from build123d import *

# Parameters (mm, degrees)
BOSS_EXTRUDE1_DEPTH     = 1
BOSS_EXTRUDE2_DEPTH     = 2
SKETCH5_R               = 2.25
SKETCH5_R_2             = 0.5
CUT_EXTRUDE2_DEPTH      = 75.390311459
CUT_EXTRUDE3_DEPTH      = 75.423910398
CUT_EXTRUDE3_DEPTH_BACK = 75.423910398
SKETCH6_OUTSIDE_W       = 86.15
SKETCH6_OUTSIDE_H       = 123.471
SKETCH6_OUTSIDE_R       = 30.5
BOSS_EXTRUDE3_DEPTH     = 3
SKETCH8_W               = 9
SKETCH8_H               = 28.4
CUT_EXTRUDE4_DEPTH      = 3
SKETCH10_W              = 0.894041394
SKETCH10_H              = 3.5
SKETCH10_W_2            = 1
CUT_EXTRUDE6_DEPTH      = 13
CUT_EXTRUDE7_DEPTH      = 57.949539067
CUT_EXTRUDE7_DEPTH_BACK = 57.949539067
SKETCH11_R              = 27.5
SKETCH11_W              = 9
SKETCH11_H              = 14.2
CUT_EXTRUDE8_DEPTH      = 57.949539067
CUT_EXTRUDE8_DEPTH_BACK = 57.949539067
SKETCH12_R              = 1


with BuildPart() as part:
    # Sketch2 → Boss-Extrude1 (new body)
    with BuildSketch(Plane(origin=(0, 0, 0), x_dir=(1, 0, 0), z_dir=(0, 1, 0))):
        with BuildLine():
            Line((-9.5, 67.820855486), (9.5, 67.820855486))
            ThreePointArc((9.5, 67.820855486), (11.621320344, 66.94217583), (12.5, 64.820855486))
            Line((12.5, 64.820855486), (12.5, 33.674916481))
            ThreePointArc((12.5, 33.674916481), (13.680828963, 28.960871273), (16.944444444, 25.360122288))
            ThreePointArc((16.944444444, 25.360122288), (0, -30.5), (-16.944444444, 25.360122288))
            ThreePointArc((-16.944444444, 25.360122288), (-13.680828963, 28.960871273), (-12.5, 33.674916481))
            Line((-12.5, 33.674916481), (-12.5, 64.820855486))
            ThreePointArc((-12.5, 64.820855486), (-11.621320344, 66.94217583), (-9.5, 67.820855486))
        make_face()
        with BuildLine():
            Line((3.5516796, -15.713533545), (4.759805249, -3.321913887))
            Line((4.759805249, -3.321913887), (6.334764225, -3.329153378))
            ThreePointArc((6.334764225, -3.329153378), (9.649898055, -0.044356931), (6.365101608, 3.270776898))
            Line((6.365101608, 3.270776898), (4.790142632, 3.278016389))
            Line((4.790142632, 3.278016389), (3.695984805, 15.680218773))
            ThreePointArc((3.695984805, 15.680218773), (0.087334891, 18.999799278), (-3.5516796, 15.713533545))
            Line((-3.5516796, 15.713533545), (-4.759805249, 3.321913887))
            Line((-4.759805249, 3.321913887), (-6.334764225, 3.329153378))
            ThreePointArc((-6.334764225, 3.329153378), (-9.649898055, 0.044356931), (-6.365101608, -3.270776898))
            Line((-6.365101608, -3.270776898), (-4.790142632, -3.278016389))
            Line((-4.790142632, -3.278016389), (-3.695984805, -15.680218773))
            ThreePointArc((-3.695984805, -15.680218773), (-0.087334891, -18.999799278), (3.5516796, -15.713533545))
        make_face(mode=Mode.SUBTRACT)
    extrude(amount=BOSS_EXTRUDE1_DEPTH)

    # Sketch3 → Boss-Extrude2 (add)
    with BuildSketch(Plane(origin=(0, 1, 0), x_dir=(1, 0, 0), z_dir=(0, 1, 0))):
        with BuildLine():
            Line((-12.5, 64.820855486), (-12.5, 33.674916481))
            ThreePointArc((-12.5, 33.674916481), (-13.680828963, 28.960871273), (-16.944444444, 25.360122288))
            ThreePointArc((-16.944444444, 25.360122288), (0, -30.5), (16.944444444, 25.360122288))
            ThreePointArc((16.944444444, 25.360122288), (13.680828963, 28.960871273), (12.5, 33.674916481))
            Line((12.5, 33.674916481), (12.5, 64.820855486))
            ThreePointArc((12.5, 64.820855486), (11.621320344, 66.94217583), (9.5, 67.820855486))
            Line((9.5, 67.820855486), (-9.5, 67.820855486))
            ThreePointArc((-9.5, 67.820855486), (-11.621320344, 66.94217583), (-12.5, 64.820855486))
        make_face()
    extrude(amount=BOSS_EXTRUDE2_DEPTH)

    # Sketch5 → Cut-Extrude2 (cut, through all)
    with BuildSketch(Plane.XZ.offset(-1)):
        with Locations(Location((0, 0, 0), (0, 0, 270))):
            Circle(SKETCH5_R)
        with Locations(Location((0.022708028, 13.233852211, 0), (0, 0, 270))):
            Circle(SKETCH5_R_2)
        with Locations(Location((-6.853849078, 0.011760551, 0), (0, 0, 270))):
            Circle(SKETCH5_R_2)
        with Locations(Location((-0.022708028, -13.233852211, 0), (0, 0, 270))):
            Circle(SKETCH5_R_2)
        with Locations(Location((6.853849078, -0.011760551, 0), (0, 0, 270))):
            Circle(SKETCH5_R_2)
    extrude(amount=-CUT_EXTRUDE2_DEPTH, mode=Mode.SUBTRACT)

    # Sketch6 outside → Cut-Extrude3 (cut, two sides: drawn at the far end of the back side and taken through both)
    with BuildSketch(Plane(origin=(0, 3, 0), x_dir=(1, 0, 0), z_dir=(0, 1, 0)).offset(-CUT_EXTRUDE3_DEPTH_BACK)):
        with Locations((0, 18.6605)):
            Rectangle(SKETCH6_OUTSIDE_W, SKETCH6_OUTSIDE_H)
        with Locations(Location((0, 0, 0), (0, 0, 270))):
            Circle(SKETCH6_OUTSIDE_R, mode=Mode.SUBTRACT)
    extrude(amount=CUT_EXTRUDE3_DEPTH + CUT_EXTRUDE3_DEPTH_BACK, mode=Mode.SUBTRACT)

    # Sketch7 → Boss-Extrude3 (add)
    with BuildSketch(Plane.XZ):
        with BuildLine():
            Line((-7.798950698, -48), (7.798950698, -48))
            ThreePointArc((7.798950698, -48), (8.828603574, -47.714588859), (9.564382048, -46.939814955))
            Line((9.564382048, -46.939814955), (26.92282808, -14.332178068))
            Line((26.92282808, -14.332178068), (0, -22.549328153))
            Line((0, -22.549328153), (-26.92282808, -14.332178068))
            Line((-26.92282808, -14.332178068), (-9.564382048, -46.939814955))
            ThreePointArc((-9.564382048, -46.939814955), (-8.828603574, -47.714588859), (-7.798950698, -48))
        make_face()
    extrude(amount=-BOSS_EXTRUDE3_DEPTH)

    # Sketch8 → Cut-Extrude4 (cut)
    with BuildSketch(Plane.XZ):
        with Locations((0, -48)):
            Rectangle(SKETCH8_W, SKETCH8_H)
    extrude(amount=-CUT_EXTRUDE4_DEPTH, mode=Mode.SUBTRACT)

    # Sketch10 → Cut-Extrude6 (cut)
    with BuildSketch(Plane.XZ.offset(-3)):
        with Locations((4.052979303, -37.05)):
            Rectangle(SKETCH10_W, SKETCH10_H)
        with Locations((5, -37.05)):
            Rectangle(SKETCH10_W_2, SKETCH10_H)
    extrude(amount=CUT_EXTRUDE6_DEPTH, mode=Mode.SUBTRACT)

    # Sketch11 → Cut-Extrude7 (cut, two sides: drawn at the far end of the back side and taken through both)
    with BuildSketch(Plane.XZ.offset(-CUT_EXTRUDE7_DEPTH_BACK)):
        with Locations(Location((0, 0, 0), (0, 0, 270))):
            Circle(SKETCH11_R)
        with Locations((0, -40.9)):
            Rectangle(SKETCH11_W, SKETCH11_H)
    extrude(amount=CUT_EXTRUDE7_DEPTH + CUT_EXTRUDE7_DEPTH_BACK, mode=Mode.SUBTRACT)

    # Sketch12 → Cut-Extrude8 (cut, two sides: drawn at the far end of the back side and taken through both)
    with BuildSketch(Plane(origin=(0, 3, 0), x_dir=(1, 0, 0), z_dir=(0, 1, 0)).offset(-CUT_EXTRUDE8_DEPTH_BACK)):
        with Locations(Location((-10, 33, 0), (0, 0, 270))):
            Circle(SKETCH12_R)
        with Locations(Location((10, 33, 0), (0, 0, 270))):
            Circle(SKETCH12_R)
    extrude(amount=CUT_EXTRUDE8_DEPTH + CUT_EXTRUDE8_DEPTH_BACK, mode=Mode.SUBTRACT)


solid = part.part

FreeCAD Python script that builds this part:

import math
import FreeCAD as App
import Part
import Sketcher

V = App.Vector
Q = App.Units.Quantity

doc = App.newDocument("Part")
body = doc.addObject("PartDesign::Body", "Body")

# Sketch on XZ plane
sketch1 = body.newObject("Sketcher::SketchObject", "Sketch")
sketch1.AttachmentSupport = (doc.getObject("XZ_Plane"), [""])
sketch1.MapMode = "FlatFace"
sketch1.addGeometry([
    Part.LineSegment(V(9.5, -67.8, 0), V(-9.5, -67.8, 0)),  # 0
    Part.ArcOfCircle(Part.Circle(V(-9.5, -64.8, 0), V(0, 0, 1), 3), math.radians(180), math.radians(270)),  # 1
    Part.LineSegment(V(-12.5, -64.8, 0), V(-12.5, -33.7, 0)),  # 2
    Part.ArcOfCircle(Part.Circle(V(-22.5, -33.7, 0), V(0, 0, 1), 10), math.radians(0), math.radians(56)),  # 3
    Part.ArcOfCircle(Part.Circle(V(0, 0, 0), V(0, 0, 1), 30.5), math.radians(-56), math.radians(236)),  # 4
    Part.ArcOfCircle(Part.Circle(V(22.5, -33.7, 0), V(0, 0, 1), 10), math.radians(124), math.radians(180)),  # 5
    Part.LineSegment(V(12.5, -33.7, 0), V(12.5, -64.8, 0)),  # 6
    Part.ArcOfCircle(Part.Circle(V(9.5, -64.8, 0), V(0, 0, 1), 3), math.radians(-90), math.radians(0)),  # 7
    Part.ArcOfCircle(Part.Circle(V(-0.1, 15.4, 0), V(0, 0, 1), 3.6), math.radians(6), math.radians(175)),  # 8
    Part.LineSegment(V(-3.7, 15.7, 0), V(-4.8, 3.3, 0)),  # 9
    Part.LineSegment(V(-4.8, 3.3, 0), V(-6.4, 3.3, 0)),  # 10
    Part.ArcOfCircle(Part.Circle(V(-6.3, 0, 0), V(0, 0, 1), 3.3), math.radians(90), math.radians(270)),  # 11
    Part.LineSegment(V(-6.3, -3.3, 0), V(-4.8, -3.3, 0)),  # 12
    Part.LineSegment(V(-4.8, -3.3, 0), V(-3.6, -15.7, 0)),  # 13
    Part.ArcOfCircle(Part.Circle(V(0.1, -15.4, 0), V(0, 0, 1), 3.6), math.radians(-174), math.radians(-5)),  # 14
    Part.LineSegment(V(3.7, -15.7, 0), V(4.8, -3.3, 0)),  # 15
    Part.LineSegment(V(4.8, -3.3, 0), V(6.4, -3.3, 0)),  # 16
    Part.ArcOfCircle(Part.Circle(V(6.3, 0, 0), V(0, 0, 1), 3.3), math.radians(-90), math.radians(90)),  # 17
    Part.LineSegment(V(6.3, 3.3, 0), V(4.8, 3.3, 0)),  # 18
    Part.LineSegment(V(4.8, 3.3, 0), V(3.6, 15.7, 0)),  # 19
], False)
sketch1.addConstraint([
    Sketcher.Constraint("Tangent", 0, 2, 1, 2),
    Sketcher.Constraint("Tangent", 1, 1, 2, 1),
    Sketcher.Constraint("Tangent", 2, 2, 3, 1),
    Sketcher.Constraint("Tangent", 3, 2, 4, 2),
    Sketcher.Constraint("Tangent", 4, 1, 5, 1),
    Sketcher.Constraint("Tangent", 5, 2, 6, 1),
    Sketcher.Constraint("Tangent", 6, 2, 7, 2),
    Sketcher.Constraint("Tangent", 7, 1, 0, 1),
    Sketcher.Constraint("Tangent", 8, 2, 9, 1),
    Sketcher.Constraint("Coincident", 9, 2, 10, 1),
    Sketcher.Constraint("Tangent", 10, 2, 11, 1),
    Sketcher.Constraint("Tangent", 11, 2, 12, 1),
    Sketcher.Constraint("Coincident", 12, 2, 13, 1),
    Sketcher.Constraint("Tangent", 13, 2, 14, 1),
    Sketcher.Constraint("Tangent", 14, 2, 15, 1),
    Sketcher.Constraint("Coincident", 15, 2, 16, 1),
    Sketcher.Constraint("Tangent", 16, 2, 17, 1),
    Sketcher.Constraint("Tangent", 17, 2, 18, 1),
    Sketcher.Constraint("Coincident", 18, 2, 19, 1),
    Sketcher.Constraint("Tangent", 19, 2, 8, 1),
    Sketcher.Constraint("Horizontal", 0),
    Sketcher.Constraint("Vertical", 2),
    Sketcher.Constraint("Vertical", 6),
    Sketcher.Constraint("Coincident", 4, 3, -1, 1),
    Sketcher.Constraint("Equal", 3, 5),
    Sketcher.Constraint("Equal", 1, 7),
    Sketcher.Constraint("Equal", 8, 14),
    Sketcher.Constraint("Equal", 11, 17),
    Sketcher.Constraint("Symmetric", 8, 3, 14, 3, -1, 1),
    Sketcher.Constraint("Symmetric", 11, 3, 17, 3, -1, 1),
    Sketcher.Constraint("Symmetric", 9, 2, 15, 2, -1, 1),
    Sketcher.Constraint("Symmetric", 12, 2, 18, 2, -1, 1),
    Sketcher.Constraint("Parallel", 10, 12),
    Sketcher.Constraint("Horizontal", 3, 3, 5, 3),
    Sketcher.Constraint("Equal", 10, 12),
    Sketcher.Constraint("Equal", 9, 13),
    Sketcher.Constraint("Radius", 1, Q("3 mm")),
    Sketcher.Constraint("Radius", 3, Q("10 mm")),
    Sketcher.Constraint("Radius", 4, Q("30.5 mm")),
    Sketcher.Constraint("Radius", 11, Q("3.3 mm")),
    Sketcher.Constraint("DistanceX", 0, 2, 0, 1, Q("19 mm")),
    Sketcher.Constraint("Radius", 8, Q("3.63946 mm")),
    Sketcher.Constraint("DistanceY", 2, 1, 2, 2, Q("31.145939 mm")),
    Sketcher.Constraint("DistanceX", 10, 2, -1, 1, Q("6.365102 mm")),
    Sketcher.Constraint("DistanceY", 11, 3, -1, 1, Q("0.029188 mm")),
    Sketcher.Constraint("DistanceY", -1, 1, 8, 2, Q("15.680219 mm")),
    Sketcher.Constraint("DistanceX", 13, 2, -1, 1, Q("3.55168 mm")),
    Sketcher.Constraint("DistanceX", 11, 3, 14, 3, Q("6.420539 mm")),
])
pad1 = body.newObject("PartDesign::Pad", "Pad")
pad1.Profile = sketch1
pad1.Length = 1
pad1.Reversed = True

# Sketch on XZ plane
sketch2 = body.newObject("Sketcher::SketchObject", "Sketch001")
sketch2.AttachmentSupport = (doc.getObject("XZ_Plane"), [""])
sketch2.MapMode = "FlatFace"
sketch2.AttachmentOffset = App.Placement(V(0, 0, -1), App.Rotation())
sketch2.addGeometry([
    Part.LineSegment(V(-12.5, -64.8, 0), V(-12.5, -33.7, 0)),  # 0
    Part.ArcOfCircle(Part.Circle(V(-22.5, -33.7, 0), V(0, 0, 1), 10), math.radians(0), math.radians(56)),  # 1
    Part.ArcOfCircle(Part.Circle(V(0, 0, 0), V(0, 0, 1), 30.5), math.radians(-56), math.radians(236)),  # 2
    Part.ArcOfCircle(Part.Circle(V(22.5, -33.7, 0), V(0, 0, 1), 10), math.radians(124), math.radians(180)),  # 3
    Part.LineSegment(V(12.5, -33.7, 0), V(12.5, -64.8, 0)),  # 4
    Part.ArcOfCircle(Part.Circle(V(9.5, -64.8, 0), V(0, 0, 1), 3), math.radians(-90), math.radians(0)),  # 5
    Part.LineSegment(V(9.5, -67.8, 0), V(-9.5, -67.8, 0)),  # 6
    Part.ArcOfCircle(Part.Circle(V(-9.5, -64.8, 0), V(0, 0, 1), 3), math.radians(180), math.radians(270)),  # 7
], False)
sketch2.addConstraint([
    Sketcher.Constraint("Tangent", 0, 2, 1, 1),
    Sketcher.Constraint("Tangent", 1, 2, 2, 2),
    Sketcher.Constraint("Tangent", 2, 1, 3, 1),
    Sketcher.Constraint("Tangent", 3, 2, 4, 1),
    Sketcher.Constraint("Tangent", 4, 2, 5, 2),
    Sketcher.Constraint("Tangent", 5, 1, 6, 1),
    Sketcher.Constraint("Tangent", 6, 2, 7, 2),
    Sketcher.Constraint("Tangent", 7, 1, 0, 1),
    Sketcher.Constraint("Vertical", 0),
    Sketcher.Constraint("Vertical", 4),
    Sketcher.Constraint("Horizontal", 6),
    Sketcher.Constraint("Coincident", 2, 3, -1, 1),
    Sketcher.Constraint("Equal", 1, 3),
    Sketcher.Constraint("Equal", 5, 7),
    Sketcher.Constraint("Horizontal", 1, 3, 3, 3),
    Sketcher.Constraint("Radius", 1, Q("10 mm")),
    Sketcher.Constraint("Radius", 5, Q("3 mm")),
    Sketcher.Constraint("Radius", 2, Q("30.5 mm")),
    Sketcher.Constraint("DistanceX", 6, 2, 6, 1, Q("19 mm")),
    Sketcher.Constraint("DistanceY", 0, 1, 0, 2, Q("31.145939 mm")),
])
pad2 = body.newObject("PartDesign::Pad", "Pad001")
pad2.Profile = sketch2
pad2.Length = 2
pad2.Reversed = True

# Sketch on XZ plane
sketch3 = body.newObject("Sketcher::SketchObject", "Sketch002")
sketch3.AttachmentSupport = (doc.getObject("XZ_Plane"), [""])
sketch3.MapMode = "FlatFace"
sketch3.AttachmentOffset = App.Placement(V(0, 0, -1), App.Rotation())
sketch3.addGeometry([
    Part.Circle(V(0, 0, 0), V(0, 0, 1), 2.2),  # 0
    Part.Circle(V(0, 13.2, 0), V(0, 0, 1), 0.5),  # 1
    Part.Circle(V(-6.9, 0, 0), V(0, 0, 1), 0.5),  # 2
    Part.Circle(V(0, -13.2, 0), V(0, 0, 1), 0.5),  # 3
    Part.Circle(V(6.9, 0, 0), V(0, 0, 1), 0.5),  # 4
], False)
sketch3.addConstraint([
    Sketcher.Constraint("Coincident", 0, 3, -1, 1),
    Sketcher.Constraint("Equal", 1, 2),
    Sketcher.Constraint("Equal", 2, 3),
    Sketcher.Constraint("Equal", 3, 4),
    Sketcher.Constraint("Symmetric", 1, 3, 3, 3, -1, 1),
    Sketcher.Constraint("Symmetric", 2, 3, 4, 3, -1, 1),
    Sketcher.Constraint("Diameter", 1, Q("1 mm")),
    Sketcher.Constraint("Diameter", 0, Q("4.5 mm")),
    Sketcher.Constraint("DistanceX", 2, 3, 4, 3, Q("13.707698 mm")),
    Sketcher.Constraint("DistanceX", -1, 1, 1, 3, Q("0.022708 mm")),
    Sketcher.Constraint("DistanceY", -1, 1, 2, 3, Q("0.011761 mm")),
    Sketcher.Constraint("DistanceY", 2, 3, 1, 3, Q("13.222092 mm")),
])
pocket1 = body.newObject("PartDesign::Pocket", "Pocket")
pocket1.Profile = sketch3
pocket1.Type = "ThroughAll"

# Sketch on XZ plane
sketch4 = body.newObject("Sketcher::SketchObject", "Sketch003")
sketch4.AttachmentSupport = (doc.getObject("XZ_Plane"), [""])
sketch4.MapMode = "FlatFace"
sketch4.AttachmentOffset = App.Placement(V(0, 0, -3), App.Rotation())
sketch4.addGeometry([
    Part.LineSegment(V(-43, -80, 0), V(-43, 43, 0)),  # 0
    Part.LineSegment(V(-43, 43, 0), V(43, 43, 0)),  # 1
    Part.LineSegment(V(43, 43, 0), V(43, -80, 0)),  # 2
    Part.LineSegment(V(43, -80, 0), V(-43, -80, 0)),  # 3
    Part.Circle(V(0, 0, 0), V(0, 0, 1), 30),  # 4
], False)
sketch4.addConstraint([
    Sketcher.Constraint("Coincident", 0, 2, 1, 1),
    Sketcher.Constraint("Coincident", 1, 2, 2, 1),
    Sketcher.Constraint("Coincident", 2, 2, 3, 1),
    Sketcher.Constraint("Coincident", 3, 2, 0, 1),
    Sketcher.Constraint("Vertical", 0),
    Sketcher.Constraint("Horizontal", 1),
    Sketcher.Constraint("Vertical", 2),
    Sketcher.Constraint("Horizontal", 3),
    Sketcher.Constraint("Coincident", 4, 3, -1, 1),
    Sketcher.Constraint("Diameter", 4, Q("61 mm")),
    Sketcher.Constraint("DistanceX", 1, 1, 1, 2, Q("86.15 mm")),
    Sketcher.Constraint("DistanceY", 0, 1, 0, 2, Q("123.471 mm")),
    Sketcher.Constraint("DistanceX", 0, 2, -1, 1, Q("43.075 mm")),
    Sketcher.Constraint("DistanceY", -1, 1, 0, 2, Q("43.075 mm")),
])
pocket2 = body.newObject("PartDesign::Pocket", "Pocket001")
pocket2.Profile = sketch4
pocket2.Type = "ThroughAll"
pocket2.Midplane = True

# Sketch on XZ plane
sketch5 = body.newObject("Sketcher::SketchObject", "Sketch004")
sketch5.AttachmentSupport = (doc.getObject("XZ_Plane"), [""])
sketch5.MapMode = "FlatFace"
sketch5.addGeometry([
    Part.LineSegment(V(-7.8, -48, 0), V(7.8, -48, 0)),  # 0
    Part.ArcOfCircle(Part.Circle(V(7.8, -46, 0), V(0, 0, 1), 2), math.radians(-90), math.radians(-28)),  # 1
    Part.LineSegment(V(9.6, -46.9, 0), V(26.9, -14.3, 0)),  # 2
    Part.LineSegment(V(26.9, -14.3, 0), V(0, -22.5, 0)),  # 3
    Part.LineSegment(V(0, -22.5, 0), V(-26.9, -14.3, 0)),  # 4
    Part.LineSegment(V(-26.9, -14.3, 0), V(-9.6, -46.9, 0)),  # 5
    Part.ArcOfCircle(Part.Circle(V(-7.8, -46, 0), V(0, 0, 1), 2), math.radians(-152), math.radians(-90)),  # 6
], False)
sketch5.addConstraint([
    Sketcher.Constraint("Tangent", 0, 2, 1, 1),
    Sketcher.Constraint("Tangent", 1, 2, 2, 1),
    Sketcher.Constraint("Coincident", 2, 2, 3, 1),
    Sketcher.Constraint("Coincident", 3, 2, 4, 1),
    Sketcher.Constraint("Coincident", 4, 2, 5, 1),
    Sketcher.Constraint("Tangent", 5, 2, 6, 1),
    Sketcher.Constraint("Tangent", 6, 2, 0, 1),
    Sketcher.Constraint("Horizontal", 0),
    Sketcher.Constraint("Equal", 1, 6),
    Sketcher.Constraint("Symmetric", 2, 2, 4, 2, -2),
    Sketcher.Constraint("PointOnObject", 3, 2, -2),
    Sketcher.Constraint("Horizontal", 1, 2, 5, 2),
    Sketcher.Constraint("Radius", 1, Q("2 mm")),
    Sketcher.Constraint("DistanceY", 1, 3, -1, 1, Q("46 mm")),
    Sketcher.Constraint("DistanceX", 0, 1, 0, 2, Q("15.597901 mm")),
    Sketcher.Constraint("DistanceX", -1, 1, 2, 2, Q("26.922828 mm")),
    Sketcher.Constraint("DistanceY", 2, 2, -1, 1, Q("14.332178 mm")),
    Sketcher.Constraint("DistanceY", 3, 2, -1, 1, Q("22.549328 mm")),
])
pad3 = body.newObject("PartDesign::Pad", "Pad002")
pad3.Profile = sketch5
pad3.Length = 3
pad3.Reversed = True

# Sketch on XZ plane
sketch6 = body.newObject("Sketcher::SketchObject", "Sketch005")
sketch6.AttachmentSupport = (doc.getObject("XZ_Plane"), [""])
sketch6.MapMode = "FlatFace"
sketch6.addGeometry([
    Part.LineSegment(V(-4, -34, 0), V(-4, -62, 0)),
    Part.LineSegment(V(-4, -62, 0), V(4, -62, 0)),
    Part.LineSegment(V(4, -62, 0), V(4, -34, 0)),
    Part.LineSegment(V(4, -34, 0), V(-4, -34, 0)),
], False)
sketch6.addConstraint([
    Sketcher.Constraint("Coincident", 0, 2, 1, 1),
    Sketcher.Constraint("Coincident", 1, 2, 2, 1),
    Sketcher.Constraint("Coincident", 2, 2, 3, 1),
    Sketcher.Constraint("Coincident", 3, 2, 0, 1),
    Sketcher.Constraint("Vertical", 0),
    Sketcher.Constraint("Horizontal", 1),
    Sketcher.Constraint("Vertical", 2),
    Sketcher.Constraint("Horizontal", 3),
    Sketcher.Constraint("DistanceX", 1, 1, 1, 2, Q("9 mm")),
    Sketcher.Constraint("DistanceY", 0, 2, 0, 1, Q("28.4 mm")),
    Sketcher.Constraint("DistanceX", 0, 2, -1, 1, Q("4.5 mm")),
    Sketcher.Constraint("DistanceY", 0, 2, -1, 1, Q("62.2 mm")),
])
pocket3 = body.newObject("PartDesign::Pocket", "Pocket002")
pocket3.Profile = sketch6
pocket3.Length = 3

# Sketch on XZ plane
sketch7 = body.newObject("Sketcher::SketchObject", "Sketch006")
sketch7.AttachmentSupport = (doc.getObject("XZ_Plane"), [""])
sketch7.MapMode = "FlatFace"
sketch7.AttachmentOffset = App.Placement(V(0, 0, -3), App.Rotation())
sketch7.addGeometry([
    Part.LineSegment(V(3.6, -35.3, 0), V(3.6, -38.8, 0)),
    Part.LineSegment(V(3.6, -38.8, 0), V(5.5, -38.8, 0)),
    Part.LineSegment(V(5.5, -38.8, 0), V(5.5, -35.3, 0)),
    Part.LineSegment(V(5.5, -35.3, 0), V(3.6, -35.3, 0)),
], False)
sketch7.addConstraint([
    Sketcher.Constraint("Coincident", 0, 2, 1, 1),
    Sketcher.Constraint("Coincident", 1, 2, 2, 1),
    Sketcher.Constraint("Coincident", 2, 2, 3, 1),
    Sketcher.Constraint("Coincident", 3, 2, 0, 1),
    Sketcher.Constraint("Vertical", 0),
    Sketcher.Constraint("Horizontal", 1),
    Sketcher.Constraint("Vertical", 2),
    Sketcher.Constraint("Horizontal", 3),
    Sketcher.Constraint("DistanceY", 0, 2, 0, 1, Q("3.5 mm")),
    Sketcher.Constraint("DistanceY", 0, 2, -1, 1, Q("38.8 mm")),
    Sketcher.Constraint("DistanceX", -1, 1, 1, 2, Q("5.5 mm")),
    Sketcher.Constraint("DistanceX", 1, 1, 1, 2, Q("1.894041 mm")),
])
pocket4 = body.newObject("PartDesign::Pocket", "Pocket003")
pocket4.Profile = sketch7
pocket4.Length = 13
pocket4.Reversed = True

# Sketch on XZ plane
sketch8 = body.newObject("Sketcher::SketchObject", "Sketch007")
sketch8.AttachmentSupport = (doc.getObject("XZ_Plane"), [""])
sketch8.MapMode = "FlatFace"
sketch8.addGeometry([
    Part.Circle(V(0, 0, 0), V(0, 0, 1), 28),  # 0
    Part.LineSegment(V(-4, -34, 0), V(-4, -48, 0)),  # 1
    Part.LineSegment(V(-4, -48, 0), V(4, -48, 0)),  # 2
    Part.LineSegment(V(4, -48, 0), V(4, -34, 0)),  # 3
    Part.LineSegment(V(4, -34, 0), V(-4, -34, 0)),  # 4
], False)
sketch8.addConstraint([
    Sketcher.Constraint("Coincident", 1, 2, 2, 1),
    Sketcher.Constraint("Coincident", 2, 2, 3, 1),
    Sketcher.Constraint("Coincident", 3, 2, 4, 1),
    Sketcher.Constraint("Coincident", 4, 2, 1, 1),
    Sketcher.Constraint("Vertical", 1),
    Sketcher.Constraint("Horizontal", 2),
    Sketcher.Constraint("Vertical", 3),
    Sketcher.Constraint("Horizontal", 4),
    Sketcher.Constraint("Coincident", 0, 3, -1, 1),
    Sketcher.Constraint("Diameter", 0, Q("55 mm")),
    Sketcher.Constraint("DistanceX", 2, 1, 2, 2, Q("9 mm")),
    Sketcher.Constraint("DistanceY", 1, 2, 1, 1, Q("14.2 mm")),
    Sketcher.Constraint("DistanceY", 1, 2, -1, 1, Q("48 mm")),
    Sketcher.Constraint("DistanceX", 1, 2, -1, 1, Q("4.5 mm")),
])
pocket5 = body.newObject("PartDesign::Pocket", "Pocket004")
pocket5.Profile = sketch8
pocket5.Type = "ThroughAll"
pocket5.Midplane = True

# Sketch on XZ plane
sketch9 = body.newObject("Sketcher::SketchObject", "Sketch008")
sketch9.AttachmentSupport = (doc.getObject("XZ_Plane"), [""])
sketch9.MapMode = "FlatFace"
sketch9.AttachmentOffset = App.Placement(V(0, 0, -3), App.Rotation())
sketch9.addGeometry([
    Part.Circle(V(-10, -33, 0), V(0, 0, 1), 1),
    Part.Circle(V(10, -33, 0), V(0, 0, 1), 1),
], False)
sketch9.addConstraint([
    Sketcher.Constraint("Equal", 0, 1),
    Sketcher.Constraint("Symmetric", 0, 3, 1, 3, -2),
    Sketcher.Constraint("Diameter", 0, Q("2 mm")),
    Sketcher.Constraint("DistanceX", 0, 3, -1, 1, Q("10 mm")),
    Sketcher.Constraint("DistanceY", 0, 3, -1, 1, Q("33 mm")),
])
pocket6 = body.newObject("PartDesign::Pocket", "Pocket005")
pocket6.Profile = sketch9
pocket6.Type = "ThroughAll"
pocket6.Midplane = True

doc.recompute()
